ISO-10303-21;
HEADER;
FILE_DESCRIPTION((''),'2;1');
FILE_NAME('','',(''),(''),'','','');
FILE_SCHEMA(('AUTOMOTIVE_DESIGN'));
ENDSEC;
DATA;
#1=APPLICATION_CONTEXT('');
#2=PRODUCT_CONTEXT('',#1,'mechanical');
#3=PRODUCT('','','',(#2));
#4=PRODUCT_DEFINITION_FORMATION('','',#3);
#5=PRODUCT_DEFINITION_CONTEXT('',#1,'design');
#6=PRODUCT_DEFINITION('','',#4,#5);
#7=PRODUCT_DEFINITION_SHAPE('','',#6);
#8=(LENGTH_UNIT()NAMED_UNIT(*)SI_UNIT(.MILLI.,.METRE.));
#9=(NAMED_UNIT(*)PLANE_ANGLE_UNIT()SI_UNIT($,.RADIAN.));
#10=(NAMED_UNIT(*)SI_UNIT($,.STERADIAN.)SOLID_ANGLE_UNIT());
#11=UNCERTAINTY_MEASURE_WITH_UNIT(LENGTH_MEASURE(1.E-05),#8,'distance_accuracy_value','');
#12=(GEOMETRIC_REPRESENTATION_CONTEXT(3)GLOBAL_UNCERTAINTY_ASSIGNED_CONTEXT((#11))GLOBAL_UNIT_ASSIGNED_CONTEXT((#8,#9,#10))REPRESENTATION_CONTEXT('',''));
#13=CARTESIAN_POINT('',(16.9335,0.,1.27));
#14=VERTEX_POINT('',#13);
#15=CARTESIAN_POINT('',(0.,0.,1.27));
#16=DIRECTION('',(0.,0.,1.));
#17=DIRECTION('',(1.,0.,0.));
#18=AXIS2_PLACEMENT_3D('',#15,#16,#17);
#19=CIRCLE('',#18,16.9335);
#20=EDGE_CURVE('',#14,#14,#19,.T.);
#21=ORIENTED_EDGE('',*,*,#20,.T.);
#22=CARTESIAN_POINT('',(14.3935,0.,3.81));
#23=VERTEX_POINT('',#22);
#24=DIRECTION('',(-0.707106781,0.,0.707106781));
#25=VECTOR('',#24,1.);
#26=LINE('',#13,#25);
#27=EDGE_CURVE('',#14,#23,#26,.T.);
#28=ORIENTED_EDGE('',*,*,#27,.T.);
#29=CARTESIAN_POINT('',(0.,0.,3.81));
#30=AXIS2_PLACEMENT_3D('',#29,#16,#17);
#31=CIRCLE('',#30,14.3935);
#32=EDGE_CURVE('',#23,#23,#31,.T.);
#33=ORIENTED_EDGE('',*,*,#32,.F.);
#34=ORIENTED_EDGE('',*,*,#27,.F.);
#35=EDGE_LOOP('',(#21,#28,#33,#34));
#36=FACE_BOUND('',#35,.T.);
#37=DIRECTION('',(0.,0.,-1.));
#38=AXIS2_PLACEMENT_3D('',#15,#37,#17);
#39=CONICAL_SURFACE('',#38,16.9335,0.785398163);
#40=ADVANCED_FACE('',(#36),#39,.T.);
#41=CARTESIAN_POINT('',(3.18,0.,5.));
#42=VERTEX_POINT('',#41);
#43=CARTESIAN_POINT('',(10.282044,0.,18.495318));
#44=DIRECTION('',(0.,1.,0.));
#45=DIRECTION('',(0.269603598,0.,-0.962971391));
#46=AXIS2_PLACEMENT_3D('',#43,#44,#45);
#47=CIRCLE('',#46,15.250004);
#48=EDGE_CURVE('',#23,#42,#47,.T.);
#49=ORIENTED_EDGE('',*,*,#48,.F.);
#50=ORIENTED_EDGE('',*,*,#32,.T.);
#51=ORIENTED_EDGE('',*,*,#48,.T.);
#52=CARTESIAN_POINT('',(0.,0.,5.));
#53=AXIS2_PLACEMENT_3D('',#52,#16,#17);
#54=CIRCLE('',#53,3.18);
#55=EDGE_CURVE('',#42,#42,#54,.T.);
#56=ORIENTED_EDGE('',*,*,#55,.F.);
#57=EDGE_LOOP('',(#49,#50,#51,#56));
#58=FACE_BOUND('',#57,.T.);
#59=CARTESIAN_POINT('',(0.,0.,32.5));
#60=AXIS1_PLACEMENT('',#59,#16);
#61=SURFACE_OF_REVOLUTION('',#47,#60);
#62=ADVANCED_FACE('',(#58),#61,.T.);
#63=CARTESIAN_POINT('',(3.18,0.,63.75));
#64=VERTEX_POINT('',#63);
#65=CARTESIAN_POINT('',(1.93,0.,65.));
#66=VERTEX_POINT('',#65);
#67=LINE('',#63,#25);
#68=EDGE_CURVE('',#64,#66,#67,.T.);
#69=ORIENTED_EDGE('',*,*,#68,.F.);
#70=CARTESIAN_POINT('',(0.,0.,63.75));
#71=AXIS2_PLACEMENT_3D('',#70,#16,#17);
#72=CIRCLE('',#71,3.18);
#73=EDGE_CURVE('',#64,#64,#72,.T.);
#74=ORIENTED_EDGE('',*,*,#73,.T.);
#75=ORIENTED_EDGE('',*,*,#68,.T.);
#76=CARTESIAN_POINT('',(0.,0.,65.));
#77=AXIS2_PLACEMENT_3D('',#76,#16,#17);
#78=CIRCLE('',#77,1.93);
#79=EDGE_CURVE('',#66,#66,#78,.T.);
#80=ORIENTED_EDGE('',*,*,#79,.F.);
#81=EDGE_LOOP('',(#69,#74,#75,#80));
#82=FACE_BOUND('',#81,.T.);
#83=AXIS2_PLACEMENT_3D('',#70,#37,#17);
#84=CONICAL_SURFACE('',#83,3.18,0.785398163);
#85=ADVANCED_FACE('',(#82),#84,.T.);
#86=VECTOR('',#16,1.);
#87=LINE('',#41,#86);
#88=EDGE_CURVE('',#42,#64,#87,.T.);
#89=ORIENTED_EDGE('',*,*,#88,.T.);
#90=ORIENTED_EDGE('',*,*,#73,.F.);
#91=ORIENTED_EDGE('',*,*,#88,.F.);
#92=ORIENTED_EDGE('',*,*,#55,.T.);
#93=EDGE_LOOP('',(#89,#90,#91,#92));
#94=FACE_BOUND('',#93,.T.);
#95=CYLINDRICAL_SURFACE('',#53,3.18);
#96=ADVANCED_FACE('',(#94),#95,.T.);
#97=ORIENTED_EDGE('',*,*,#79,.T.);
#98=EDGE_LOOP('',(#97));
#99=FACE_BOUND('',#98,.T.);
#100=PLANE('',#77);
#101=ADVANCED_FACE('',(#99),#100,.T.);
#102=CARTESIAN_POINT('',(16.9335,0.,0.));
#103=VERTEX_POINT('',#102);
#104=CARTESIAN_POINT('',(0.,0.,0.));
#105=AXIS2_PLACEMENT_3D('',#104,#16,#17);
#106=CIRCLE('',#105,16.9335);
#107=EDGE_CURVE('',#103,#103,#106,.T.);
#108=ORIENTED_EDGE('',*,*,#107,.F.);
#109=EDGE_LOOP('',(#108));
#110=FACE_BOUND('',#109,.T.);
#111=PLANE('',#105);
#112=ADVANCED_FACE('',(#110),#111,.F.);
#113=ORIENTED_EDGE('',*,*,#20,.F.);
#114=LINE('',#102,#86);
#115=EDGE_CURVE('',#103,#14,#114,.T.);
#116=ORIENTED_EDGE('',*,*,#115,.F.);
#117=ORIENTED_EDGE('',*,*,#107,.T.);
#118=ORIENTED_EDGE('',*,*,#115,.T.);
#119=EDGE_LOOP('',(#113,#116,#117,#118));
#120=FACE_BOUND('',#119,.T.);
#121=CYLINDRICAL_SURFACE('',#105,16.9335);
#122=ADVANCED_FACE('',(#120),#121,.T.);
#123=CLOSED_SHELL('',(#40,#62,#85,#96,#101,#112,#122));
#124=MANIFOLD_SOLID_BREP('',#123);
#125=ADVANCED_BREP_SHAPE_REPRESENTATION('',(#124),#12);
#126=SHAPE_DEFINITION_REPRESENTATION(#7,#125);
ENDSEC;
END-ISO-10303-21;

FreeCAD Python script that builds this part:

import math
import FreeCAD as App
import Part
import Sketcher

V = App.Vector
Q = App.Units.Quantity


def edges_at(feature, points):
    """Names of the edges that pass closest to the given points."""
    edges = feature.Shape.Edges
    near = lambda p: min(range(len(edges)), key=lambda i: edges[i].distToShape(Part.Vertex(*p))[0])
    return sorted({f"Edge{near(p) + 1}" for p in points})

doc = App.newDocument("Part")
params = doc.addObject("Spreadsheet::Sheet", "Params")
for row, (alias, value) in enumerate([
    ("sketch1_height", "65 mm"),
    ("sketch1_height2", "60 mm"),
    ("sketch1_width", "3.18 mm"),
    ("sketch1_height3", "1.27 mm"),
    ("revolution_angle", "360 deg"),
    ("chamfer_size", "1.25 mm"),
    ("chamfer_size2", "1.25 mm"),
], start=1):
    params.set(f"A{row}", alias)
    params.set(f"B{row}", "=" + value)
    params.setAlias(f"B{row}", alias)

body = doc.addObject("PartDesign::Body", "Body")

sketch1 = body.newObject("Sketcher::SketchObject", "Sketch")
sketch1.AttachmentSupport = (doc.getObject("XZ_Plane"), [""])
sketch1.MapMode = "FlatFace"
sketch1.addGeometry(Part.LineSegment(V(0, 65, 0), V(0, 0, 0)), False)
sketch1.addGeometry(Part.LineSegment(V(0, 0, 0), V(16.9, 0, 0)), False)
sketch1.addGeometry(Part.LineSegment(V(16.9, 0, 0), V(16.9, 1.3, 0)), False)
sketch1.addGeometry(Part.LineSegment(V(16.9, 1.3, 0), V(14.4, 3.8, 0)), False)
sketch1.addGeometry(Part.ArcOfCircle(Part.Circle(V(10.3, 18.5, 0), V(0, 0, 1), 15.3), math.radians(-118), math.radians(-74)), False)
sketch1.addGeometry(Part.LineSegment(V(3.2, 5, 0), V(3.2, 65, 0)), False)
sketch1.addGeometry(Part.LineSegment(V(3.2, 65, 0), V(0, 65, 0)), False)
sketch1.addConstraint(Sketcher.Constraint("Coincident", 0, 2, 1, 1))
sketch1.addConstraint(Sketcher.Constraint("Coincident", 1, 2, 2, 1))
sketch1.addConstraint(Sketcher.Constraint("Coincident", 2, 2, 3, 1))
sketch1.addConstraint(Sketcher.Constraint("Coincident", 3, 2, 4, 2))
sketch1.addConstraint(Sketcher.Constraint("Coincident", 4, 1, 5, 1))
sketch1.addConstraint(Sketcher.Constraint("Coincident", 5, 2, 6, 1))
sketch1.addConstraint(Sketcher.Constraint("Coincident", 6, 2, 0, 1))
sketch1.addConstraint(Sketcher.Constraint("Vertical", 0))
sketch1.addConstraint(Sketcher.Constraint("Horizontal", 1))
sketch1.addConstraint(Sketcher.Constraint("Vertical", 2))
sketch1.addConstraint(Sketcher.Constraint("Vertical", 5))
sketch1.addConstraint(Sketcher.Constraint("Horizontal", 6))
sketch1.addConstraint(Sketcher.Constraint("Coincident", 0, 2, -1, 1))
sketch1.addConstraint(Sketcher.Constraint("DistanceY", 0, 2, 0, 1, 65.0))
sketch1.addConstraint(Sketcher.Constraint("DistanceY", 5, 1, 5, 2, 60.0))
sketch1.addConstraint(Sketcher.Constraint("Angle", 3, Q("135 deg")))
sketch1.addConstraint(Sketcher.Constraint("DistanceX", 6, 2, 6, 1, 3.18))
sketch1.addConstraint(Sketcher.Constraint("DistanceY", 2, 1, 2, 2, 1.27))
sketch1.addConstraint(Sketcher.Constraint("DistanceY", -1, 1, 3, 2, 3.81))
sketch1.addConstraint(Sketcher.Constraint("DistanceX", 1, 1, 1, 2, 16.9335))
sketch1.addConstraint(Sketcher.Constraint("Radius", 4, 15.250004))
sketch1.setExpression("Constraints[13]", "Params.sketch1_height")
sketch1.setExpression("Constraints[14]", "Params.sketch1_height2")
sketch1.setExpression("Constraints[16]", "Params.sketch1_width")
sketch1.setExpression("Constraints[17]", "Params.sketch1_height3")
revolution = body.newObject("PartDesign::Revolution", "Revolution")
revolution.Profile = sketch1
revolution.ReferenceAxis = (sketch1, ["V_Axis"])
revolution.setExpression("Angle", "Params.revolution_angle")
doc.recompute()

chamfer = body.newObject("PartDesign::Chamfer", "Chamfer")
chamfer.Base = (revolution, edges_at(revolution, [(-3.18, 0, 65)]))
chamfer.ChamferType = "Two distances"
chamfer.setExpression("Size", "Params.chamfer_size")
chamfer.setExpression("Size2", "Params.chamfer_size2")

doc.recompute()
